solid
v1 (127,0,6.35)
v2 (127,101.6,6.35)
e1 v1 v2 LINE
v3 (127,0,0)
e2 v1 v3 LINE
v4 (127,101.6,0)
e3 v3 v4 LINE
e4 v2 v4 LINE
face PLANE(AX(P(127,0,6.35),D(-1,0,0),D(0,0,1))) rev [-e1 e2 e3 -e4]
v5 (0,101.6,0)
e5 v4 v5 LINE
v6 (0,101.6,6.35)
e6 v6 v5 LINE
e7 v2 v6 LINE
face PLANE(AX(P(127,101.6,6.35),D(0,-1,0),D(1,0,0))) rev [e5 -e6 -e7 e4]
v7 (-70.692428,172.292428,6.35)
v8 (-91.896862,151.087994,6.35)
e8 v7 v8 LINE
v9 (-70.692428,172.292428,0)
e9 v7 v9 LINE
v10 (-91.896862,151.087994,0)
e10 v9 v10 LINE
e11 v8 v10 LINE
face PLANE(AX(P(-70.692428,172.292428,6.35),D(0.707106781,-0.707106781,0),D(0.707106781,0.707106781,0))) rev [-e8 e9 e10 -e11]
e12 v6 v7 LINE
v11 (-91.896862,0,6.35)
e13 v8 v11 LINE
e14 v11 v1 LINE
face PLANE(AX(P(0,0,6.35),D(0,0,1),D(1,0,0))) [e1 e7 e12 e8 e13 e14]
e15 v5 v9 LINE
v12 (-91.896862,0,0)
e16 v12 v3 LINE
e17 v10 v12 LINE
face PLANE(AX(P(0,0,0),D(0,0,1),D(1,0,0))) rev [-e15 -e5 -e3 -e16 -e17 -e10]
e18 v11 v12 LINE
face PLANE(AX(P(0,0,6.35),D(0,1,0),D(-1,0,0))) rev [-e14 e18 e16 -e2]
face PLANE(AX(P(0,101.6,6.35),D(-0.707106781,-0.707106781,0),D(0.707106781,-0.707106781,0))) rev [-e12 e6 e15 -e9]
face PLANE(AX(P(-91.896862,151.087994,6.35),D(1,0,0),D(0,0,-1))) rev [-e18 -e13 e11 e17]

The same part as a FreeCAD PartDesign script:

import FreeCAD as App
import Part
import Sketcher

V = App.Vector
Q = App.Units.Quantity


def add_polygon(sketch, points):
    """Adds a closed chain of lines whose ends are joined by coincident constraints."""
    first, n = sketch.GeometryCount, len(points)
    for a, b in zip(points, points[1:] + points[:1]):
        sketch.addGeometry(Part.LineSegment(App.Vector(*a, 0), App.Vector(*b, 0)), False)
    for i in range(n):
        sketch.addConstraint(Sketcher.Constraint("Coincident", first + i, 2, first + (i + 1) % n, 1))

doc = App.newDocument("Part")
body = doc.addObject("PartDesign::Body", "Body")

# Sketch on XY plane
sketch1 = doc.addObject("Sketcher::SketchObject", "Sketch")
body.addObject(sketch1)
sketch1.AttachmentSupport = (doc.XY_Plane, [""])
sketch1.MapMode = "FlatFace"
add_polygon(sketch1, [(127, 0), (127, 102), (0, 102), (-71, 172), (-92, 151), (-92, 0)])  # lines 0-5
sketch1.addConstraint(Sketcher.Constraint("Vertical", 0))
sketch1.addConstraint(Sketcher.Constraint("Horizontal", 1))
sketch1.addConstraint(Sketcher.Constraint("Vertical", 4))
sketch1.addConstraint(Sketcher.Constraint("Horizontal", 5))
sketch1.addConstraint(Sketcher.Constraint("PointOnObject", 1, 2, -2))
sketch1.addConstraint(Sketcher.Constraint("PointOnObject", 4, 2, -1))
sketch1.addConstraint(Sketcher.Constraint("Perpendicular", 2, 3))
sketch1.addConstraint(Sketcher.Constraint("DistanceX", 1, 2, 1, 1, Q("5 in")))
sketch1.addConstraint(Sketcher.Constraint("DistanceY", 0, 1, 0, 2, Q("4 in")))
sketch1.addConstraint(Sketcher.Constraint("Angle", 2, Q("135 deg")))
sketch1.addConstraint(Sketcher.Constraint("Distance", 3, 29.987598))
sketch1.addConstraint(Sketcher.Constraint("DistanceX", 5, 1, 5, 2, 218.896862))
pad1 = doc.addObject("PartDesign::Pad", "Pad")
body.addObject(pad1)
pad1.Profile = sketch1
pad1.Length = Q("0.25 in")

doc.recompute()
